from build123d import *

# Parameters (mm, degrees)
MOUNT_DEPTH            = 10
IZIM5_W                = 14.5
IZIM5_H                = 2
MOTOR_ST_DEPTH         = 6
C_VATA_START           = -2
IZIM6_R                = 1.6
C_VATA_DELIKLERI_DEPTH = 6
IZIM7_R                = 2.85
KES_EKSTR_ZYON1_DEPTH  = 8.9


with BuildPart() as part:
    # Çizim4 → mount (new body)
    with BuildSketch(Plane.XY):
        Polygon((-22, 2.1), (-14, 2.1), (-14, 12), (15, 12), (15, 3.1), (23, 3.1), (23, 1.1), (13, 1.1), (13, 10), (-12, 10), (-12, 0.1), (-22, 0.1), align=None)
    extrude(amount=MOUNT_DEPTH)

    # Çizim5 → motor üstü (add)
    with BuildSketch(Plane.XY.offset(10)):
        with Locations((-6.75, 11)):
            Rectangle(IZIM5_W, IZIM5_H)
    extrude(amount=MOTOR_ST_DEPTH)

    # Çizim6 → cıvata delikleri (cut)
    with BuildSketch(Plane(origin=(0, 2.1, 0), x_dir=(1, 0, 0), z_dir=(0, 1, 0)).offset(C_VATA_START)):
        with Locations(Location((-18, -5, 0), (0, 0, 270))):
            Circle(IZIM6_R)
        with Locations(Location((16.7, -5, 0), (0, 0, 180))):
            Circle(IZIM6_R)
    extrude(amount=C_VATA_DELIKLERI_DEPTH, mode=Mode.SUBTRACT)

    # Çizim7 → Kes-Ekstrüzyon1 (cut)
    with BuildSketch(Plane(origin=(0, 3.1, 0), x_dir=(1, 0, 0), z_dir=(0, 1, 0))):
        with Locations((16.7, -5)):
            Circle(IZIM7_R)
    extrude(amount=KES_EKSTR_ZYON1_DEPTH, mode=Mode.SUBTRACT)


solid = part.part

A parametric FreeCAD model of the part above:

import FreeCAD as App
import Part
import Sketcher


def add_polygon(sketch, points):
    """Adds a closed chain of lines whose ends are joined by coincident constraints."""
    first, n = sketch.GeometryCount, len(points)
    for a, b in zip(points, points[1:] + points[:1]):
        sketch.addGeometry(Part.LineSegment(App.Vector(*a, 0), App.Vector(*b, 0)), False)
    for i in range(n):
        sketch.addConstraint(Sketcher.Constraint("Coincident", first + i, 2, first + (i + 1) % n, 1))

doc = App.newDocument("Part")
body = doc.addObject("PartDesign::Body", "Body")

sketch1 = doc.addObject("Sketcher::SketchObject", "Sketch")
body.addObject(sketch1)
sketch1.AttachmentSupport = (doc.XY_Plane, [""])
sketch1.MapMode = "FlatFace"
add_polygon(sketch1, [(-14, 2.1), (-22, 2.1), (-22, 0.1), (-12, 0.1), (-12, 10), (13, 10), (13, 1.1), (23, 1.1), (23, 3.1), (15, 3.1), (15, 12), (-14, 12)])
sketch1.addConstraint([
    Sketcher.Constraint("Horizontal", 0),
    Sketcher.Constraint("Vertical", 1),
    Sketcher.Constraint("Horizontal", 2),
    Sketcher.Constraint("Vertical", 3),
    Sketcher.Constraint("Horizontal", 4),
    Sketcher.Constraint("Vertical", 5),
    Sketcher.Constraint("Horizontal", 6),
    Sketcher.Constraint("Vertical", 7),
    Sketcher.Constraint("Horizontal", 8),
    Sketcher.Constraint("Vertical", 9),
    Sketcher.Constraint("Horizontal", 10),
    Sketcher.Constraint("Vertical", 11),
    Sketcher.Constraint("Equal", 2, 6),
    Sketcher.Constraint("Equal", 0, 8),
    Sketcher.Constraint("Equal", 1, 7),
    Sketcher.Constraint("Equal", 5, 9),
    Sketcher.Constraint("DistanceX", 0, 2, 0, 1, 8.0),
    Sketcher.Constraint("DistanceX", 2, 1, 2, 2, 10.0),
    Sketcher.Constraint("DistanceX", 4, 1, 4, 2, 25.0),
    Sketcher.Constraint("DistanceY", 1, 2, 1, 1, 2.0),
    Sketcher.Constraint("DistanceY", 3, 1, 3, 2, 9.9),
    Sketcher.Constraint("DistanceY", 5, 2, 5, 1, 8.9),
    Sketcher.Constraint("DistanceX", 0, 2, -1, 1, 22.0),
    Sketcher.Constraint("DistanceY", -1, 1, 3, 2, 10.0),
])
pad1 = doc.addObject("PartDesign::Pad", "Pad")
body.addObject(pad1)
pad1.Profile = sketch1
pad1.Length = 10

sketch2 = doc.addObject("Sketcher::SketchObject", "Sketch001")
body.addObject(sketch2)
sketch2.AttachmentSupport = (doc.XY_Plane, [""])
sketch2.MapMode = "FlatFace"
sketch2.AttachmentOffset = App.Placement(App.Vector(0, 0, 10), App.Rotation())
add_polygon(sketch2, [(-14, 12), (-14, 10), (0.5, 10), (0.5, 12)])
sketch2.addConstraint([
    Sketcher.Constraint("Vertical", 0),
    Sketcher.Constraint("Horizontal", 1),
    Sketcher.Constraint("Vertical", 2),
    Sketcher.Constraint("Horizontal", 3),
    Sketcher.Constraint("DistanceY", 0, 2, 0, 1, 2.0),
    Sketcher.Constraint("DistanceX", 1, 1, 1, 2, 14.5),
    Sketcher.Constraint("DistanceX", 0, 2, -1, 1, 14.0),
    Sketcher.Constraint("DistanceY", -1, 1, 0, 2, 10.0),
])
pad2 = doc.addObject("PartDesign::Pad", "Pad001")
body.addObject(pad2)
pad2.Profile = sketch2
pad2.Length = 6

sketch3 = doc.addObject("Sketcher::SketchObject", "Sketch002")
body.addObject(sketch3)
sketch3.AttachmentSupport = (doc.XZ_Plane, [""])
sketch3.MapMode = "FlatFace"
sketch3.AttachmentOffset = App.Placement(App.Vector(0, 0, -0.1), App.Rotation())
sketch3.addGeometry([
    Part.Circle(App.Vector(-18, 5, 0), App.Vector(0, 0, 1), 1.6),
    Part.Circle(App.Vector(16.7, 5, 0), App.Vector(0, 0, 1), 1.6),
], False)
sketch3.addConstraint([
    Sketcher.Constraint("Equal", 0, 1),
    Sketcher.Constraint("Horizontal", 0, 3, 1, 3),
    Sketcher.Constraint("Diameter", 0, 3.2),
    Sketcher.Constraint("DistanceX", 0, 3, -1, 1, 18.0),
    Sketcher.Constraint("DistanceY", -1, 1, 0, 3, 5.0),
    Sketcher.Constraint("DistanceX", -1, 1, 1, 3, 16.7),
])
pocket1 = doc.addObject("PartDesign::Pocket", "Pocket")
body.addObject(pocket1)
pocket1.Profile = sketch3
pocket1.Length = 6

sketch4 = doc.addObject("Sketcher::SketchObject", "Sketch003")
body.addObject(sketch4)
sketch4.AttachmentSupport = (doc.XZ_Plane, [""])
sketch4.MapMode = "FlatFace"
sketch4.AttachmentOffset = App.Placement(App.Vector(0, 0, -3.1), App.Rotation())
sketch4.addGeometry(Part.Circle(App.Vector(16.7, 5, 0), App.Vector(0, 0, 1), 2.9), False)
sketch4.addConstraint([
    Sketcher.Constraint("Diameter", 0, 5.7),
    Sketcher.Constraint("DistanceY", -1, 1, 0, 3, 5.0),
    Sketcher.Constraint("DistanceX", -1, 1, 0, 3, 16.7),
])
pocket2 = doc.addObject("PartDesign::Pocket", "Pocket001")
body.addObject(pocket2)
pocket2.Profile = sketch4
pocket2.Length = 8.9

doc.recompute()
